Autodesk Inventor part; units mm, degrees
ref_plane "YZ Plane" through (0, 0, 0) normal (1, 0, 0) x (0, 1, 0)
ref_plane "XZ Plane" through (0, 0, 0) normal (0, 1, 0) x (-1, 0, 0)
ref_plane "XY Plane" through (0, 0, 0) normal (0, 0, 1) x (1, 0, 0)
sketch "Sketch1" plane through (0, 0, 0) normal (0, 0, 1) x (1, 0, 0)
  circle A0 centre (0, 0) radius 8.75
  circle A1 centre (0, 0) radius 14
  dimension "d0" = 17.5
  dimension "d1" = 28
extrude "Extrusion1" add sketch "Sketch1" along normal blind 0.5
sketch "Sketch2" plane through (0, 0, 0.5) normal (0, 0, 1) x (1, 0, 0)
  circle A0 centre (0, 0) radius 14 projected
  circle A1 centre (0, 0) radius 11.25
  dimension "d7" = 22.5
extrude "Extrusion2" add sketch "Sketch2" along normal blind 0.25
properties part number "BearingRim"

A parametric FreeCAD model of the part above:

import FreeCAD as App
import Part
import Sketcher

V = App.Vector

doc = App.newDocument("Part")
params = doc.addObject("Spreadsheet::Sheet", "Params")
for row, (alias, value) in enumerate([
    ("sketch1_diameter", "28 mm"),
    ("sketch1_diameter2", "17.5 mm"),
    ("pad1_length", "0.5 mm"),
    ("sketch2_diameter", "22.5 mm"),
    ("sketch2_diameter2", "28 mm"),
    ("pad2_length", "0.25 mm"),
], start=1):
    params.set(f"A{row}", alias)
    params.set(f"B{row}", "=" + value)
    params.setAlias(f"B{row}", alias)

body = doc.addObject("PartDesign::Body", "Body")

# Sketch on XY plane
sketch1 = body.newObject("Sketcher::SketchObject", "Sketch")
sketch1.AttachmentSupport = (doc.getObject("XY_Plane"), [""])
sketch1.MapMode = "FlatFace"
sketch1.addGeometry([
    Part.Circle(V(0, 0, 0), V(0, 0, 1), 14),
    Part.Circle(V(0, 0, 0), V(0, 0, 1), 8.75),
], False)
sketch1.addConstraint([
    Sketcher.Constraint("Coincident", 0, 3, -1, 1),
    Sketcher.Constraint("Coincident", 1, 3, -1, 1),
    Sketcher.Constraint("Diameter", 0, 28.0),
    Sketcher.Constraint("Diameter", 1, 17.5),
])
sketch1.setExpression("Constraints[2]", "Params.sketch1_diameter")
sketch1.setExpression("Constraints[3]", "Params.sketch1_diameter2")
pad1 = body.newObject("PartDesign::Pad", "Pad")
pad1.Profile = sketch1
pad1.setExpression("Length", "Params.pad1_length")

# Sketch on XY plane
sketch2 = body.newObject("Sketcher::SketchObject", "Sketch001")
sketch2.AttachmentSupport = (doc.getObject("XY_Plane"), [""])
sketch2.MapMode = "FlatFace"
sketch2.AttachmentOffset = App.Placement(V(0, 0, 0.5), App.Rotation())
sketch2.addGeometry([
    Part.Circle(V(0, 0, 0), V(0, 0, 1), 14),
    Part.Circle(V(0, 0, 0), V(0, 0, 1), 11.25),
], False)
sketch2.addConstraint([
    Sketcher.Constraint("Coincident", 0, 3, -1, 1),
    Sketcher.Constraint("Coincident", 1, 3, -1, 1),
    Sketcher.Constraint("Diameter", 1, 22.5),
    Sketcher.Constraint("Diameter", 0, 28.0),
])
sketch2.setExpression("Constraints[2]", "Params.sketch2_diameter")
sketch2.setExpression("Constraints[3]", "Params.sketch2_diameter2")
pad2 = body.newObject("PartDesign::Pad", "Pad001")
pad2.Profile = sketch2
pad2.setExpression("Length", "Params.pad2_length")

doc.recompute()
